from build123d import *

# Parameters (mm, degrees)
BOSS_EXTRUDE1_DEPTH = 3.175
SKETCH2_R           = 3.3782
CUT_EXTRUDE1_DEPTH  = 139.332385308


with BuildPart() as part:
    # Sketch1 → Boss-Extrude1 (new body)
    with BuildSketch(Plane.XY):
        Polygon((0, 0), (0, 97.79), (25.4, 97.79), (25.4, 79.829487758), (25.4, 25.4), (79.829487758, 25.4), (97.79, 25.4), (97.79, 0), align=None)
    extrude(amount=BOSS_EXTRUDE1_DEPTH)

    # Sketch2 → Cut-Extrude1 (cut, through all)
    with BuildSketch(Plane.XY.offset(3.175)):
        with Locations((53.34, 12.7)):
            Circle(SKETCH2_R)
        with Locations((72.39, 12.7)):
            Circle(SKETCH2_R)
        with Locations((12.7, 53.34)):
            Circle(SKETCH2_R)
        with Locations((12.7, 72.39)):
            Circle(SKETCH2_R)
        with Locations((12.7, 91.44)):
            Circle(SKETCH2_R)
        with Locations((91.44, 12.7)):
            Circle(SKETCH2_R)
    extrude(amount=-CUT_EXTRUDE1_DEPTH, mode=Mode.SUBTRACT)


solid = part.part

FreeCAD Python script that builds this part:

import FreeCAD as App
import Part
import Sketcher

V = App.Vector
Q = App.Units.Quantity

doc = App.newDocument("Part")
body = doc.addObject("PartDesign::Body", "Body")

# Sketch on XY plane
sketch1 = body.newObject("Sketcher::SketchObject", "Sketch")
sketch1.AttachmentSupport = (doc.getObject("XY_Plane"), [""])
sketch1.MapMode = "FlatFace"
sketch1.addGeometry(Part.LineSegment(V(0, 97.79, 0), V(0, 0, 0)), False)
sketch1.addGeometry(Part.LineSegment(V(0, 0, 0), V(97.79, 0, 0)), False)
sketch1.addGeometry(Part.LineSegment(V(97.79, 0, 0), V(97.79, 25.4, 0)), False)
sketch1.addGeometry(Part.LineSegment(V(97.79, 25.4, 0), V(25.4, 25.4, 0)), False)
sketch1.addGeometry(Part.LineSegment(V(25.4, 25.4, 0), V(25.4, 97.79, 0)), False)
sketch1.addGeometry(Part.LineSegment(V(25.4, 97.79, 0), V(0, 97.79, 0)), False)
sketch1.addConstraint(Sketcher.Constraint("Coincident", 0, 2, 1, 1))
sketch1.addConstraint(Sketcher.Constraint("Coincident", 1, 2, 2, 1))
sketch1.addConstraint(Sketcher.Constraint("Coincident", 2, 2, 3, 1))
sketch1.addConstraint(Sketcher.Constraint("Coincident", 3, 2, 4, 1))
sketch1.addConstraint(Sketcher.Constraint("Coincident", 4, 2, 5, 1))
sketch1.addConstraint(Sketcher.Constraint("Coincident", 5, 2, 0, 1))
sketch1.addConstraint(Sketcher.Constraint("Vertical", 0))
sketch1.addConstraint(Sketcher.Constraint("Horizontal", 1))
sketch1.addConstraint(Sketcher.Constraint("Vertical", 2))
sketch1.addConstraint(Sketcher.Constraint("Horizontal", 3))
sketch1.addConstraint(Sketcher.Constraint("Vertical", 4))
sketch1.addConstraint(Sketcher.Constraint("Horizontal", 5))
sketch1.addConstraint(Sketcher.Constraint("Coincident", 0, 2, -1, 1))
sketch1.addConstraint(Sketcher.Constraint("Equal", 1, 0))
sketch1.addConstraint(Sketcher.Constraint("Equal", 5, 2))
sketch1.addConstraint(Sketcher.Constraint("DistanceX", 5, 2, 5, 1, Q("1 in")))
sketch1.addConstraint(Sketcher.Constraint("DistanceX", 1, 1, 1, 2, Q("3.85 in")))
pad1 = body.newObject("PartDesign::Pad", "Pad")
pad1.Profile = sketch1
pad1.Length = Q("0.125 in")

# Sketch on XY plane
sketch2 = body.newObject("Sketcher::SketchObject", "Sketch001")
sketch2.AttachmentSupport = (doc.getObject("XY_Plane"), [""])
sketch2.MapMode = "FlatFace"
sketch2.AttachmentOffset = App.Placement(V(0, 0, 0.125 * 25.4), App.Rotation())
sketch2.addGeometry(Part.Circle(V(53.34, 12.7, 0), V(0, 0, 1), 3.3782), False)
sketch2.addGeometry(Part.Circle(V(72.39, 12.7, 0), V(0, 0, 1), 3.3782), False)
sketch2.addGeometry(Part.Circle(V(12.7, 53.34, 0), V(0, 0, 1), 3.3782), False)
sketch2.addGeometry(Part.Circle(V(12.7, 72.39, 0), V(0, 0, 1), 3.3782), False)
sketch2.addGeometry(Part.Circle(V(12.7, 91.44, 0), V(0, 0, 1), 3.3782), False)
sketch2.addGeometry(Part.Circle(V(91.44, 12.7, 0), V(0, 0, 1), 3.3782), False)
sketch2.addConstraint(Sketcher.Constraint("Equal", 0, 1))
sketch2.addConstraint(Sketcher.Constraint("Equal", 1, 2))
sketch2.addConstraint(Sketcher.Constraint("Equal", 2, 3))
sketch2.addConstraint(Sketcher.Constraint("Equal", 3, 4))
sketch2.addConstraint(Sketcher.Constraint("Equal", 4, 5))
sketch2.addConstraint(Sketcher.Constraint("Horizontal", 0, 3, 1, 3))
sketch2.addConstraint(Sketcher.Constraint("Horizontal", 1, 3, 5, 3))
sketch2.addConstraint(Sketcher.Constraint("Vertical", 2, 3, 3, 3))
sketch2.addConstraint(Sketcher.Constraint("Vertical", 3, 3, 4, 3))
sketch2.addConstraint(Sketcher.Constraint("Diameter", 0, Q("0.266 in")))
sketch2.addConstraint(Sketcher.Constraint("DistanceX", -1, 1, 0, 3, Q("2.1 in")))
sketch2.addConstraint(Sketcher.Constraint("DistanceY", -1, 1, 0, 3, Q("0.5 in")))
sketch2.addConstraint(Sketcher.Constraint("DistanceX", -1, 1, 2, 3, Q("0.5 in")))
sketch2.addConstraint(Sketcher.Constraint("DistanceY", -1, 1, 2, 3, Q("2.1 in")))
sketch2.addConstraint(Sketcher.Constraint("DistanceY", -1, 1, 4, 3, Q("3.6 in")))
sketch2.addConstraint(Sketcher.Constraint("DistanceX", -1, 1, 5, 3, Q("3.6 in")))
sketch2.addConstraint(Sketcher.Constraint("DistanceX", -1, 1, 1, 3, Q("2.85 in")))
sketch2.addConstraint(Sketcher.Constraint("DistanceY", -1, 1, 3, 3, Q("2.85 in")))
pocket1 = body.newObject("PartDesign::Pocket", "Pocket")
pocket1.Profile = sketch2
pocket1.Type = "ThroughAll"

doc.recompute()
